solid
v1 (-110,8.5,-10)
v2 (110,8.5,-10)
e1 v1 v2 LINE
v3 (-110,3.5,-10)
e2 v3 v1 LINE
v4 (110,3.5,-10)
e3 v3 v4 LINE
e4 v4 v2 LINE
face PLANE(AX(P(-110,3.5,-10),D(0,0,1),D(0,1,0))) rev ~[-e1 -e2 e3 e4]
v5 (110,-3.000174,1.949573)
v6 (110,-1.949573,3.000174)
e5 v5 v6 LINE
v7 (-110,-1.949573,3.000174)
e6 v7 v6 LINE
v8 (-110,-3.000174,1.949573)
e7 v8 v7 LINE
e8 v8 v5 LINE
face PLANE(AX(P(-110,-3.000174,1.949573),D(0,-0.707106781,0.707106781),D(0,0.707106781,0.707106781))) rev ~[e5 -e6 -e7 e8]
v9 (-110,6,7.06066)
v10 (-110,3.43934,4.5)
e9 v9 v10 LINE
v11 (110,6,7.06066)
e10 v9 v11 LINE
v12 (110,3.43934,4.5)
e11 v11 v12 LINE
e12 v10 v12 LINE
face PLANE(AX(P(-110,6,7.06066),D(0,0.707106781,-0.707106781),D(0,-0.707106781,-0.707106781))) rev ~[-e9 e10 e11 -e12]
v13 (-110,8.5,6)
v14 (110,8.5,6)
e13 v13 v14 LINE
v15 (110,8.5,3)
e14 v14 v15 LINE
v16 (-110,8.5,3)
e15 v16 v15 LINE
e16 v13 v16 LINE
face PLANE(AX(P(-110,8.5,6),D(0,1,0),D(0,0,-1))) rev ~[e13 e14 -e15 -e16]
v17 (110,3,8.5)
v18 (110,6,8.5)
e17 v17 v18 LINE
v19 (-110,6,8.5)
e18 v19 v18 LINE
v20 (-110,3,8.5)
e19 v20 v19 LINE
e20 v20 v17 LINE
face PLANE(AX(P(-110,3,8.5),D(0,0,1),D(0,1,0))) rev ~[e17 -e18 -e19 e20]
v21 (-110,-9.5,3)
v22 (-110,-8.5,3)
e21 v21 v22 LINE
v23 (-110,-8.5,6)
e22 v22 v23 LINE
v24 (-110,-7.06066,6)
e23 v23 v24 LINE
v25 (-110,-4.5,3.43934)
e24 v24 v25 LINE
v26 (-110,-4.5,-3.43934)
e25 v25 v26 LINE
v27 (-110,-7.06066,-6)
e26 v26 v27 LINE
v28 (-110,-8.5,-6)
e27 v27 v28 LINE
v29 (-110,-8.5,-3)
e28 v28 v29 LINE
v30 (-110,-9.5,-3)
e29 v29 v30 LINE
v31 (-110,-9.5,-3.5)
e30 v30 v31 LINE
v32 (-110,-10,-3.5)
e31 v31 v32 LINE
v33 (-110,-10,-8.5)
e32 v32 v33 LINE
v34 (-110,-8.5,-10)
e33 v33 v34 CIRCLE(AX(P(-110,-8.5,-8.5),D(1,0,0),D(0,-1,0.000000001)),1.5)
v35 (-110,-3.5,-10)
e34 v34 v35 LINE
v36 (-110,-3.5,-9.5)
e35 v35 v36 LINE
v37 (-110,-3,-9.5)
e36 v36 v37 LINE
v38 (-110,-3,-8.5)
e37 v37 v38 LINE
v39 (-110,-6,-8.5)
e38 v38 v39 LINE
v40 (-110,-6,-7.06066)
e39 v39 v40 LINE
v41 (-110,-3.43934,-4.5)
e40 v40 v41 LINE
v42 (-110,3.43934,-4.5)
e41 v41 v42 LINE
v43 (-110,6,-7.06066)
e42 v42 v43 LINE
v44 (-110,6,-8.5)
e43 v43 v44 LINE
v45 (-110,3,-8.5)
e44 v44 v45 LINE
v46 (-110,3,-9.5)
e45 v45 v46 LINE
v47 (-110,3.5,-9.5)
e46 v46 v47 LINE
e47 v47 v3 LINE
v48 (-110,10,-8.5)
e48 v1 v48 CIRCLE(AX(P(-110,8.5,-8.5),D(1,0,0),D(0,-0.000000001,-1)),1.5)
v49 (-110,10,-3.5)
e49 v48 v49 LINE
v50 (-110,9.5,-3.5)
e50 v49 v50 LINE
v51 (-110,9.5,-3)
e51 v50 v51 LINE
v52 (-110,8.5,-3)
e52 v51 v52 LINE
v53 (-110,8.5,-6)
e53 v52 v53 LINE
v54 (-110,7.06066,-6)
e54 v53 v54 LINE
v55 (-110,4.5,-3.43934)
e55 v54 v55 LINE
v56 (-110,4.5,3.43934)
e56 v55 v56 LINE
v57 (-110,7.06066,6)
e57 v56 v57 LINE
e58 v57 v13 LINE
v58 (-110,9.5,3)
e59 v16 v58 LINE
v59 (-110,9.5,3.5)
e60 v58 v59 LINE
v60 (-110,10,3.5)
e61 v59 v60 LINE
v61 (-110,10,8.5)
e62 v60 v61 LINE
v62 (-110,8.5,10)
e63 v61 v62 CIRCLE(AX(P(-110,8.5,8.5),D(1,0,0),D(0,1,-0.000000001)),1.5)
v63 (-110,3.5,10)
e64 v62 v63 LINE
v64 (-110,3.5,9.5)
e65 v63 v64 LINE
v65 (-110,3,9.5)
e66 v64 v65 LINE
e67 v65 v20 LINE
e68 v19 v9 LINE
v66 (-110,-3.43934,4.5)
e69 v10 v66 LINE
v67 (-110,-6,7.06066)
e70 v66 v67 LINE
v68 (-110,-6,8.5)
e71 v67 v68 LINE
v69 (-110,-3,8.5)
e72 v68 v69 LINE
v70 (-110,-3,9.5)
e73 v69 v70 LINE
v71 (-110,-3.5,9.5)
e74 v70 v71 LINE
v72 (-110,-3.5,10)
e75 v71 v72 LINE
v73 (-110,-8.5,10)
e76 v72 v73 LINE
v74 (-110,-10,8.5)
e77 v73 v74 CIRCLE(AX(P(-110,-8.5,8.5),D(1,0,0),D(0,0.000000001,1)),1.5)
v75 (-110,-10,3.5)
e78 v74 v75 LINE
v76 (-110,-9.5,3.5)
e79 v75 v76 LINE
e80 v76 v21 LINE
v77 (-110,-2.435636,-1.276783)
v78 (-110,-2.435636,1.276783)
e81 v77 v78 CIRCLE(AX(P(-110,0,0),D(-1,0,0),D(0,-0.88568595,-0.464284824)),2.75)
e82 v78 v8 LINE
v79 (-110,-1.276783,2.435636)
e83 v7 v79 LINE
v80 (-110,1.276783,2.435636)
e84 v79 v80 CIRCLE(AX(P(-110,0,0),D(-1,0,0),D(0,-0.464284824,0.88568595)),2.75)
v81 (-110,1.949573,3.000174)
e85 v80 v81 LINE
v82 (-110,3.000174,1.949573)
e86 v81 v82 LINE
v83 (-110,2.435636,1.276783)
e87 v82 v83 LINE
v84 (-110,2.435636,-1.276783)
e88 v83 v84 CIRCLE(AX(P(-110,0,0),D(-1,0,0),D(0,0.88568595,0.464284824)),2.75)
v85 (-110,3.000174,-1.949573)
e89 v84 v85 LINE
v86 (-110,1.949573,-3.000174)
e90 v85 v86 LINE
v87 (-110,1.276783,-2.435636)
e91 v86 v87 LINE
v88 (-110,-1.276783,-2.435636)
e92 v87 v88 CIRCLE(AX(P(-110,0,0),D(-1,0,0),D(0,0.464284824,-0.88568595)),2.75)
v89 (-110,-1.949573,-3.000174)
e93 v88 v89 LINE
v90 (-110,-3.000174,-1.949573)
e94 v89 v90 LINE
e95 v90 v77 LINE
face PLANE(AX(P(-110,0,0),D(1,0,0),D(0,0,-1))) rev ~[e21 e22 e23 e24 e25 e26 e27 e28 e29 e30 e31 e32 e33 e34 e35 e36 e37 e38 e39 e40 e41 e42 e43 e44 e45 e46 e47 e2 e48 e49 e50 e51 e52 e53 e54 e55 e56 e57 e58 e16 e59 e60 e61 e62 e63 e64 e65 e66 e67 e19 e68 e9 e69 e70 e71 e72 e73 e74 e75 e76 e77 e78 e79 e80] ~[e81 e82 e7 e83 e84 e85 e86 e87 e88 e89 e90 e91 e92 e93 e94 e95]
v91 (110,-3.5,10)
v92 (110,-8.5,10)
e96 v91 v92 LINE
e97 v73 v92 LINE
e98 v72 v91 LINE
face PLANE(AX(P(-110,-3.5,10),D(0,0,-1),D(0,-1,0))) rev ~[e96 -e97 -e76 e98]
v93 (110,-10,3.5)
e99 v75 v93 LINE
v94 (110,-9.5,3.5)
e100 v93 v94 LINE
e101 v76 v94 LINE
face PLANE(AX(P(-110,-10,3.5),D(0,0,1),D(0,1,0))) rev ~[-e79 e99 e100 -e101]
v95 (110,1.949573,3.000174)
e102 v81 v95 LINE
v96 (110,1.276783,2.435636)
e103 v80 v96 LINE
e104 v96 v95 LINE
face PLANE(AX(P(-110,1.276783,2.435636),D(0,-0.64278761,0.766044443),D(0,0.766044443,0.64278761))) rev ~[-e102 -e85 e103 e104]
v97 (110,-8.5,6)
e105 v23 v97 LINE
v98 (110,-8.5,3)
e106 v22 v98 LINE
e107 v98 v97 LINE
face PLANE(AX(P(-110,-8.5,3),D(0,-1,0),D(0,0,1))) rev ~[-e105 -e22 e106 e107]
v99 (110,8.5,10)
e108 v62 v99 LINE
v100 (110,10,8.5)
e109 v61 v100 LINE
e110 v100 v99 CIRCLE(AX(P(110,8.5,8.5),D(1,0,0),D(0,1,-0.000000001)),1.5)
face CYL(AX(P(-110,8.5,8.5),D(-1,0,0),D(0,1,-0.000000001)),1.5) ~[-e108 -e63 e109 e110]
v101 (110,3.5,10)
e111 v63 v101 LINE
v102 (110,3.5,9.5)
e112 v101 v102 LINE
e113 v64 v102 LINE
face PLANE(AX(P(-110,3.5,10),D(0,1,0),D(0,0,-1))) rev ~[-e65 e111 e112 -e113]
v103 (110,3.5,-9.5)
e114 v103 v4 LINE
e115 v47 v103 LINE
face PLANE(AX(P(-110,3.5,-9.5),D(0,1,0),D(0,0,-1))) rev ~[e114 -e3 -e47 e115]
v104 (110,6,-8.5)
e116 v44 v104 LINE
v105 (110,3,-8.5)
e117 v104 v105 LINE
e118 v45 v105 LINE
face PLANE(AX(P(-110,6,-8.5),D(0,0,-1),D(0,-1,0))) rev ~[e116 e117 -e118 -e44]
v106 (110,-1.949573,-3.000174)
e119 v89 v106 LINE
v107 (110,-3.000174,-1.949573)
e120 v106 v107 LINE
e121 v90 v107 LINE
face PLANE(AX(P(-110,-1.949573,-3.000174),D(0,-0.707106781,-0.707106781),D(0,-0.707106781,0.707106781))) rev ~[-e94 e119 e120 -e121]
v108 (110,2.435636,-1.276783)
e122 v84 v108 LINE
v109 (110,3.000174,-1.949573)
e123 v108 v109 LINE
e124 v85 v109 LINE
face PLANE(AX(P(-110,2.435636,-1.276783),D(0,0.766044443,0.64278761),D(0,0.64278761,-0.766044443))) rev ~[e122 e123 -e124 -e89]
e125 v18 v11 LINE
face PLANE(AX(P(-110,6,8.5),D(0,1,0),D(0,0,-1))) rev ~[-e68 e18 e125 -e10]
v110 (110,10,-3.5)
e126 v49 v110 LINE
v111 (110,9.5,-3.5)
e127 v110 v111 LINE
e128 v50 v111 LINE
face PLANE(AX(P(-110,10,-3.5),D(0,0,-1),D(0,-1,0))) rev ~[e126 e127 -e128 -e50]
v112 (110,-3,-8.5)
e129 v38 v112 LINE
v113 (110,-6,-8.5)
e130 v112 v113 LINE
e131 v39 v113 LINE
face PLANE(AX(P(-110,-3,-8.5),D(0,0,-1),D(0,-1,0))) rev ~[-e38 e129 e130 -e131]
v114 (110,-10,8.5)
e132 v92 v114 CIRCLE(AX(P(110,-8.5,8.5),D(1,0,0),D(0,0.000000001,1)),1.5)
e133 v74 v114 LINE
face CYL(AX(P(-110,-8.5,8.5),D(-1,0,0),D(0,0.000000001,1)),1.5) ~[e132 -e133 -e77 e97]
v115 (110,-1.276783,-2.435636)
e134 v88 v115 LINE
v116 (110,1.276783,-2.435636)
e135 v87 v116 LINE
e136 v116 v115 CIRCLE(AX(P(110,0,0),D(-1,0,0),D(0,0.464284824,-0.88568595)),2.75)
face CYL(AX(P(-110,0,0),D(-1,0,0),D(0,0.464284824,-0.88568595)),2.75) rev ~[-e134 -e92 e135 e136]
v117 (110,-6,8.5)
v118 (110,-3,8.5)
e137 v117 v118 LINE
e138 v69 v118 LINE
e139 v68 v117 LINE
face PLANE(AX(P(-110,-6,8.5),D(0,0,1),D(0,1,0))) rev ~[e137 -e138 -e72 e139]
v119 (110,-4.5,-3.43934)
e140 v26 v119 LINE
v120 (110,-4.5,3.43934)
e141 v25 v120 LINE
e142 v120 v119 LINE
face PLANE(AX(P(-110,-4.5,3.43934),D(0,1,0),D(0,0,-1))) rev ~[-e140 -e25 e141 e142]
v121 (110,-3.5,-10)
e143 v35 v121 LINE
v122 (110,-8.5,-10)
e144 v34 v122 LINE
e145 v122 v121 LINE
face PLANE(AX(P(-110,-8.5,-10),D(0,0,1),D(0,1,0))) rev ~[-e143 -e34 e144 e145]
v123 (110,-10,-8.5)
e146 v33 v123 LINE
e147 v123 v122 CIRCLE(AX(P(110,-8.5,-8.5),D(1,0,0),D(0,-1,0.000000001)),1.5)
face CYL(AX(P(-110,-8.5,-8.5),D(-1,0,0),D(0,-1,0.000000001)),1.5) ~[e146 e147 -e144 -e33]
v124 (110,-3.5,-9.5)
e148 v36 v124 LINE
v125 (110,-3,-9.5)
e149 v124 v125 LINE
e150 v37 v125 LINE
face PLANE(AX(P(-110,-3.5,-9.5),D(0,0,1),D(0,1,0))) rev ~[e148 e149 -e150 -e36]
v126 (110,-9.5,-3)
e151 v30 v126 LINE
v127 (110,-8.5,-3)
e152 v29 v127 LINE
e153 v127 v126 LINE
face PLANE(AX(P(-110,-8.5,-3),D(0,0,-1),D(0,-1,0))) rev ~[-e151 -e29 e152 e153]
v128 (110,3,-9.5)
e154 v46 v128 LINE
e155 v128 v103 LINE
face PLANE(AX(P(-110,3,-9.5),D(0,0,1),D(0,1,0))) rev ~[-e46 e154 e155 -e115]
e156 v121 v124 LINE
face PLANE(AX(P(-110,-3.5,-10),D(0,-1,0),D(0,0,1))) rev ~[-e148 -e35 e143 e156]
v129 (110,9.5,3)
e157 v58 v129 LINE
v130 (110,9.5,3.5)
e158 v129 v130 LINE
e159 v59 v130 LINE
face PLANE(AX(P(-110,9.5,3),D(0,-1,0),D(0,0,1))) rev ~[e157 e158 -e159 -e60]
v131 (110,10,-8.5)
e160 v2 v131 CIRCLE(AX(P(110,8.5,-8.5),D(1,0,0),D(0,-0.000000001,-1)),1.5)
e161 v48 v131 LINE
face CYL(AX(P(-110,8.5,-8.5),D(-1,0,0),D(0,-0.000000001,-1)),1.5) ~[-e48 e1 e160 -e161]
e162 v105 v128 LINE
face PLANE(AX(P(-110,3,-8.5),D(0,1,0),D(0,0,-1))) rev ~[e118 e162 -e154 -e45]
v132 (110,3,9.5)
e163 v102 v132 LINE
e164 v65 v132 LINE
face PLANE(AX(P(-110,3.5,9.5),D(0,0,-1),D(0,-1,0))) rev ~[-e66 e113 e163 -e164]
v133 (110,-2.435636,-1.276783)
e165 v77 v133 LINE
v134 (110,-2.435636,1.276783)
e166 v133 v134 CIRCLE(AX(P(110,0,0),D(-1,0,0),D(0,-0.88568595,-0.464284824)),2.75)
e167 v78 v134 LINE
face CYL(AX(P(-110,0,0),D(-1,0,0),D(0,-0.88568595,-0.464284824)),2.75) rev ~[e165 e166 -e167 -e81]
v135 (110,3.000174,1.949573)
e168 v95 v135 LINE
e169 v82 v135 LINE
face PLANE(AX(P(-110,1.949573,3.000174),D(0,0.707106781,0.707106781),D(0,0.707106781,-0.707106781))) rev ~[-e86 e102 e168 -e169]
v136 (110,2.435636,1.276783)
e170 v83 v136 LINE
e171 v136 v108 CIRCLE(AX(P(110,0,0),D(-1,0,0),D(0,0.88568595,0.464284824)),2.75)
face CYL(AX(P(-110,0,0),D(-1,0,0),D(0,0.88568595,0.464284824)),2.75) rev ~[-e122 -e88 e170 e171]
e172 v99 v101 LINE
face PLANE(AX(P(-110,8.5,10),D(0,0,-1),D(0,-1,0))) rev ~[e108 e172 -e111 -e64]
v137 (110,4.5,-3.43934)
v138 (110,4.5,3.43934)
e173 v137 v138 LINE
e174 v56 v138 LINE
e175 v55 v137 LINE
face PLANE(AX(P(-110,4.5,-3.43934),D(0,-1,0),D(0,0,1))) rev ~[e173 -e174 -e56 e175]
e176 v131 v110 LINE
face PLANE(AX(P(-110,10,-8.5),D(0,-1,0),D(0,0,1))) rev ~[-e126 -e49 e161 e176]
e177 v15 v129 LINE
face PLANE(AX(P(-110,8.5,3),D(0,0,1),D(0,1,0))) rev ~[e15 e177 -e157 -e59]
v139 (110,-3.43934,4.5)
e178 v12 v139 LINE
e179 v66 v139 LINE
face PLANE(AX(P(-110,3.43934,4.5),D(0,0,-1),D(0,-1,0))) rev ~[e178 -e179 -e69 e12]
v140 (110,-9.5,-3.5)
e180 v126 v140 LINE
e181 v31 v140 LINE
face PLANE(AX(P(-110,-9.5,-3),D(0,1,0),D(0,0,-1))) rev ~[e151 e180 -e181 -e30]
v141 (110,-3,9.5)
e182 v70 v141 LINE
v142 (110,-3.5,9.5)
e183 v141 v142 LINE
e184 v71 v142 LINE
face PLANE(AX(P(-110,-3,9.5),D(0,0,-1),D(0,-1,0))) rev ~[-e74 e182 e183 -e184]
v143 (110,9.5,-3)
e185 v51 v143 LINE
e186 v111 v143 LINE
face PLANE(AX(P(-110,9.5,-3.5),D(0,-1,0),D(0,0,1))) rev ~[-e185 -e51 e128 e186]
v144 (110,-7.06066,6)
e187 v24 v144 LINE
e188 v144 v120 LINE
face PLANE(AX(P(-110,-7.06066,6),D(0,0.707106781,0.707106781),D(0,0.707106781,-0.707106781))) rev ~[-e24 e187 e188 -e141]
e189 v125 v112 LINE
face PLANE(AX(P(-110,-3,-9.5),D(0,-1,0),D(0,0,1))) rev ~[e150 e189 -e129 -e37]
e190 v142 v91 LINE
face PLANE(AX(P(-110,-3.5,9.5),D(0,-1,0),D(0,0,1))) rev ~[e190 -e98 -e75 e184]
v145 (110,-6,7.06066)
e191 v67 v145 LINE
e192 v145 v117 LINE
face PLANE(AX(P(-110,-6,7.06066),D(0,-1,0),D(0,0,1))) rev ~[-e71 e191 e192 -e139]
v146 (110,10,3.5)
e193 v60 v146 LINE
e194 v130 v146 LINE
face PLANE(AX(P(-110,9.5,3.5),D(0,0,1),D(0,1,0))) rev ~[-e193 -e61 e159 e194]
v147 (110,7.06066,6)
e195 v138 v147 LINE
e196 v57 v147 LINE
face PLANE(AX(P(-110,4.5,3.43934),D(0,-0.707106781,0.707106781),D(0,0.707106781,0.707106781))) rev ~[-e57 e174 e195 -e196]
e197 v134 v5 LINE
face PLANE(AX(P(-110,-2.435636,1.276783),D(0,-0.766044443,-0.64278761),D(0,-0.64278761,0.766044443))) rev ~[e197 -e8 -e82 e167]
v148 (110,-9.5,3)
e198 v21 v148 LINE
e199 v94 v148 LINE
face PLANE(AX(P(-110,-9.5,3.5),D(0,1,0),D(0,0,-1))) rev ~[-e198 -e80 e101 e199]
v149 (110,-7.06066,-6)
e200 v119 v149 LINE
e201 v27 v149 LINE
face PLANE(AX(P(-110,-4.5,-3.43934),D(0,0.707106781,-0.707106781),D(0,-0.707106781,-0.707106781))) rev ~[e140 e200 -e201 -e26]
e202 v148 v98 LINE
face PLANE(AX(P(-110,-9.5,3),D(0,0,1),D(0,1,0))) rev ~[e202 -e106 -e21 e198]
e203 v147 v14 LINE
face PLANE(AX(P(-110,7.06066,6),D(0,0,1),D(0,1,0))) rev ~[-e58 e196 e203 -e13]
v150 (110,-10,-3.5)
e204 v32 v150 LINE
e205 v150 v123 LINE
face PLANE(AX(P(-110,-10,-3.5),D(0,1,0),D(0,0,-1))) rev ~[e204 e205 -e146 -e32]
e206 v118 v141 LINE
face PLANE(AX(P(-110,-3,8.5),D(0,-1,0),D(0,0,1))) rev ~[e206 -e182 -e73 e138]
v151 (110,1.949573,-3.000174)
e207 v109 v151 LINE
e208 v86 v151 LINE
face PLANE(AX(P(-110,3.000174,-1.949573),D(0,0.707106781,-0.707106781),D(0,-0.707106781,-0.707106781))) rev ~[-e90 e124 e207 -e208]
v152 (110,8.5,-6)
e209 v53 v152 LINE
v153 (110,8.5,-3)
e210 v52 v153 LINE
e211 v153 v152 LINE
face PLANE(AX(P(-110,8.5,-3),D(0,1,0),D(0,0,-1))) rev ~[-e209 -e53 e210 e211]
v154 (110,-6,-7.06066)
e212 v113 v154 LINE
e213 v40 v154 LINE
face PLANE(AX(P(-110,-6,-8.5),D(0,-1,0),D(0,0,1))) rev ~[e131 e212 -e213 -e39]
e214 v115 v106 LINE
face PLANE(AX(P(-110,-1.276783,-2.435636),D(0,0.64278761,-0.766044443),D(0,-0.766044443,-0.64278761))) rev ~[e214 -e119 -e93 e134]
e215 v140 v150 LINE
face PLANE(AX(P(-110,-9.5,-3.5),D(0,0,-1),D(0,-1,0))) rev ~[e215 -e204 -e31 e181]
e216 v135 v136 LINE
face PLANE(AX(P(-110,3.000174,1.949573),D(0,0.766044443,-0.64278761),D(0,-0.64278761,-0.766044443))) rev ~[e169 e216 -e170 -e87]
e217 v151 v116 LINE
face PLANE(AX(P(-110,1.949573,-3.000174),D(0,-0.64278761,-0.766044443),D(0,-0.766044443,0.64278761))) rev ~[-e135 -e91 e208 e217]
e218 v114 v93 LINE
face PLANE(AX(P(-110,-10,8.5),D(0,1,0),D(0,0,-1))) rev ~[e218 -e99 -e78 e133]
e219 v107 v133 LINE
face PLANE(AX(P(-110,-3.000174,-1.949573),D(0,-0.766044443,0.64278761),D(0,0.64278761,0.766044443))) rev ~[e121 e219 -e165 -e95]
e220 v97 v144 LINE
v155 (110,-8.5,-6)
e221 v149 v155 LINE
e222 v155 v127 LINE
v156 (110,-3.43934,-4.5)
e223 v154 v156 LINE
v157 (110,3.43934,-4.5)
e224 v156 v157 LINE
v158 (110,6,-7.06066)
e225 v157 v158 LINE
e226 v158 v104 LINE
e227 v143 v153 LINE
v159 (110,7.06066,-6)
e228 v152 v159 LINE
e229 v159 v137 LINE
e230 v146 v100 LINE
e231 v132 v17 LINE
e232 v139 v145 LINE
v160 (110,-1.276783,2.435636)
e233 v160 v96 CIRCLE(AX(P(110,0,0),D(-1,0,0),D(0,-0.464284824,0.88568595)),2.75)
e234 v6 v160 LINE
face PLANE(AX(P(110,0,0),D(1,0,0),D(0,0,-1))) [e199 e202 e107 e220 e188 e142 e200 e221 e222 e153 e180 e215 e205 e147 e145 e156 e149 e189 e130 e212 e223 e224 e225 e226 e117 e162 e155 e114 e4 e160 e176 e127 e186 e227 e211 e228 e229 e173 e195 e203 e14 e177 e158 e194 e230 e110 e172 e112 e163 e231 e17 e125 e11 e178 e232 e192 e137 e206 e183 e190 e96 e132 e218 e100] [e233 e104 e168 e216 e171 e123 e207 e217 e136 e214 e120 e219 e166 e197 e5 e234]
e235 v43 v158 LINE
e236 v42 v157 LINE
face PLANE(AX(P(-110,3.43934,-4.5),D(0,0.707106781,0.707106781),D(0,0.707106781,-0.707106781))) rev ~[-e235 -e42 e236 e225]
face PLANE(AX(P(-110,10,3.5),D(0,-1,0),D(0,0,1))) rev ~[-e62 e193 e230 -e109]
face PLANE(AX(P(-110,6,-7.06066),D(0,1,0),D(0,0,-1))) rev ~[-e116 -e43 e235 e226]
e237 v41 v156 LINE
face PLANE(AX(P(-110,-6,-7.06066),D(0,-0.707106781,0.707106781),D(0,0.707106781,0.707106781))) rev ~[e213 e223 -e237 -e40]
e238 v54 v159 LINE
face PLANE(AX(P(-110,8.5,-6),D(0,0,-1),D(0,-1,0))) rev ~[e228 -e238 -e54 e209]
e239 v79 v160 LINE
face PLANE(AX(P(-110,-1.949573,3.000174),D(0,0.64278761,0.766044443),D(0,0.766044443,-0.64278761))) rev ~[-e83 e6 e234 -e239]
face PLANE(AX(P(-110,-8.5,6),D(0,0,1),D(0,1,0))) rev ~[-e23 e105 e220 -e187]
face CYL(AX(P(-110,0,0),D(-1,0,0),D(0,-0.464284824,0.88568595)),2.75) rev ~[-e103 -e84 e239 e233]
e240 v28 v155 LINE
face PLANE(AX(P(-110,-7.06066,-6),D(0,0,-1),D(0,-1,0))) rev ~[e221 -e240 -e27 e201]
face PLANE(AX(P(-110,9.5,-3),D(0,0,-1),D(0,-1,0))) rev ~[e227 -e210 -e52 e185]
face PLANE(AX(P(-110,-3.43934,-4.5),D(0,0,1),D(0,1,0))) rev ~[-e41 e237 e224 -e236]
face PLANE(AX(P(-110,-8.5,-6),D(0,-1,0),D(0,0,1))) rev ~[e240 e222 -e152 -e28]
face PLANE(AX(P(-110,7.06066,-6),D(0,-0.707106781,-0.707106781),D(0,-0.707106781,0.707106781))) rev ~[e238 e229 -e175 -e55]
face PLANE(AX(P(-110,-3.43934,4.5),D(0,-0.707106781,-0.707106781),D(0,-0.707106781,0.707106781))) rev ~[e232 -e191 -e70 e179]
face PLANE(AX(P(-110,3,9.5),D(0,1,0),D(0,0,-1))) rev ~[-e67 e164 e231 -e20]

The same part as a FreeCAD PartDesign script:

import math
import FreeCAD as App
import Part
import Sketcher
Q = App.Units.Quantity

doc = App.newDocument("Part")
body = doc.addObject("PartDesign::Body", "Body")

sketch1 = doc.addObject("Sketcher::SketchObject", "Sketch")
body.addObject(sketch1)
sketch1.AttachmentSupport = (doc.YZ_Plane, [""])
sketch1.MapMode = "FlatFace"
sketch1.addGeometry(Part.LineSegment(App.Vector(-6, 7.1, 0), App.Vector(-6, 8.5, 0)), False)
sketch1.addGeometry(Part.LineSegment(App.Vector(-6, 8.5, 0), App.Vector(-3, 8.5, 0)), False)
sketch1.addGeometry(Part.LineSegment(App.Vector(-3, 8.5, 0), App.Vector(-3, 9.5, 0)), False)
sketch1.addGeometry(Part.LineSegment(App.Vector(-3, 9.5, 0), App.Vector(-3.5, 9.5, 0)), False)
sketch1.addGeometry(Part.LineSegment(App.Vector(-3.5, 9.5, 0), App.Vector(-3.5, 10, 0)), False)
sketch1.addGeometry(Part.LineSegment(App.Vector(-3.5, 10, 0), App.Vector(-8.5, 10, 0)), False)
sketch1.addGeometry(Part.ArcOfCircle(Part.Circle(App.Vector(-8.5, 8.5, 0), App.Vector(0, 0, 1), 1.5), math.radians(90), math.radians(180)), False)
sketch1.addGeometry(Part.LineSegment(App.Vector(-10, 8.5, 0), App.Vector(-10, 3.5, 0)), False)
sketch1.addGeometry(Part.LineSegment(App.Vector(-10, 3.5, 0), App.Vector(-9.5, 3.5, 0)), False)
sketch1.addGeometry(Part.LineSegment(App.Vector(-9.5, 3.5, 0), App.Vector(-9.5, 3, 0)), False)
sketch1.addGeometry(Part.LineSegment(App.Vector(-9.5, 3, 0), App.Vector(-8.5, 3, 0)), False)
sketch1.addGeometry(Part.LineSegment(App.Vector(-8.5, 3, 0), App.Vector(-8.5, 6, 0)), False)
sketch1.addGeometry(Part.LineSegment(App.Vector(-8.5, 6, 0), App.Vector(-7.1, 6, 0)), False)
sketch1.addGeometry(Part.LineSegment(App.Vector(-7.1, 6, 0), App.Vector(-4.5, 3.4, 0)), False)
sketch1.addGeometry(Part.LineSegment(App.Vector(-4.5, 3.4, 0), App.Vector(-4.5, -3.4, 0)), False)
sketch1.addGeometry(Part.LineSegment(App.Vector(-4.5, -3.4, 0), App.Vector(-7.1, -6, 0)), False)
sketch1.addGeometry(Part.LineSegment(App.Vector(-7.1, -6, 0), App.Vector(-8.5, -6, 0)), False)
sketch1.addGeometry(Part.LineSegment(App.Vector(-8.5, -6, 0), App.Vector(-8.5, -3, 0)), False)
sketch1.addGeometry(Part.LineSegment(App.Vector(-8.5, -3, 0), App.Vector(-9.5, -3, 0)), False)
sketch1.addGeometry(Part.LineSegment(App.Vector(-9.5, -3, 0), App.Vector(-9.5, -3.5, 0)), False)
sketch1.addGeometry(Part.LineSegment(App.Vector(-9.5, -3.5, 0), App.Vector(-10, -3.5, 0)), False)
sketch1.addGeometry(Part.LineSegment(App.Vector(-10, -3.5, 0), App.Vector(-10, -8.5, 0)), False)
sketch1.addGeometry(Part.ArcOfCircle(Part.Circle(App.Vector(-8.5, -8.5, 0), App.Vector(0, 0, 1), 1.5), math.radians(180), math.radians(270)), False)
sketch1.addGeometry(Part.LineSegment(App.Vector(-8.5, -10, 0), App.Vector(-3.5, -10, 0)), False)
sketch1.addGeometry(Part.LineSegment(App.Vector(-3.5, -10, 0), App.Vector(-3.5, -9.5, 0)), False)
sketch1.addGeometry(Part.LineSegment(App.Vector(-3.5, -9.5, 0), App.Vector(-3, -9.5, 0)), False)
sketch1.addGeometry(Part.LineSegment(App.Vector(-3, -9.5, 0), App.Vector(-3, -8.5, 0)), False)
sketch1.addGeometry(Part.LineSegment(App.Vector(-3, -8.5, 0), App.Vector(-6, -8.5, 0)), False)
sketch1.addGeometry(Part.LineSegment(App.Vector(-6, -8.5, 0), App.Vector(-6, -7.1, 0)), False)
sketch1.addGeometry(Part.LineSegment(App.Vector(-6, -7.1, 0), App.Vector(-3.4, -4.5, 0)), False)
sketch1.addGeometry(Part.LineSegment(App.Vector(-3.4, -4.5, 0), App.Vector(3.4, -4.5, 0)), False)
sketch1.addGeometry(Part.LineSegment(App.Vector(3.4, -4.5, 0), App.Vector(6, -7.1, 0)), False)
sketch1.addGeometry(Part.LineSegment(App.Vector(6, -7.1, 0), App.Vector(6, -8.5, 0)), False)
sketch1.addGeometry(Part.LineSegment(App.Vector(6, -8.5, 0), App.Vector(3, -8.5, 0)), False)
sketch1.addGeometry(Part.LineSegment(App.Vector(3, -8.5, 0), App.Vector(3, -9.5, 0)), False)
sketch1.addGeometry(Part.LineSegment(App.Vector(3, -9.5, 0), App.Vector(3.5, -9.5, 0)), False)
sketch1.addGeometry(Part.LineSegment(App.Vector(3.5, -9.5, 0), App.Vector(3.5, -10, 0)), False)
sketch1.addGeometry(Part.LineSegment(App.Vector(3.5, -10, 0), App.Vector(8.5, -10, 0)), False)
sketch1.addGeometry(Part.ArcOfCircle(Part.Circle(App.Vector(8.5, -8.5, 0), App.Vector(0, 0, 1), 1.5), math.radians(-90), math.radians(0)), False)
sketch1.addGeometry(Part.LineSegment(App.Vector(10, -8.5, 0), App.Vector(10, -3.5, 0)), False)
sketch1.addGeometry(Part.LineSegment(App.Vector(10, -3.5, 0), App.Vector(9.5, -3.5, 0)), False)
sketch1.addGeometry(Part.LineSegment(App.Vector(9.5, -3.5, 0), App.Vector(9.5, -3, 0)), False)
sketch1.addGeometry(Part.LineSegment(App.Vector(9.5, -3, 0), App.Vector(8.5, -3, 0)), False)
sketch1.addGeometry(Part.LineSegment(App.Vector(8.5, -3, 0), App.Vector(8.5, -6, 0)), False)
sketch1.addGeometry(Part.LineSegment(App.Vector(8.5, -6, 0), App.Vector(7.1, -6, 0)), False)
sketch1.addGeometry(Part.LineSegment(App.Vector(7.1, -6, 0), App.Vector(4.5, -3.4, 0)), False)
sketch1.addGeometry(Part.LineSegment(App.Vector(4.5, -3.4, 0), App.Vector(4.5, 3.4, 0)), False)
sketch1.addGeometry(Part.LineSegment(App.Vector(4.5, 3.4, 0), App.Vector(7.1, 6, 0)), False)
sketch1.addGeometry(Part.LineSegment(App.Vector(7.1, 6, 0), App.Vector(8.5, 6, 0)), False)
sketch1.addGeometry(Part.LineSegment(App.Vector(8.5, 6, 0), App.Vector(8.5, 3, 0)), False)
sketch1.addGeometry(Part.LineSegment(App.Vector(8.5, 3, 0), App.Vector(9.5, 3, 0)), False)
sketch1.addGeometry(Part.LineSegment(App.Vector(9.5, 3, 0), App.Vector(9.5, 3.5, 0)), False)
sketch1.addGeometry(Part.LineSegment(App.Vector(9.5, 3.5, 0), App.Vector(10, 3.5, 0)), False)
sketch1.addGeometry(Part.LineSegment(App.Vector(10, 3.5, 0), App.Vector(10, 8.5, 0)), False)
sketch1.addGeometry(Part.ArcOfCircle(Part.Circle(App.Vector(8.5, 8.5, 0), App.Vector(0, 0, 1), 1.5), math.radians(0), math.radians(90)), False)
sketch1.addGeometry(Part.LineSegment(App.Vector(8.5, 10, 0), App.Vector(3.5, 10, 0)), False)
sketch1.addGeometry(Part.LineSegment(App.Vector(3.5, 10, 0), App.Vector(3.5, 9.5, 0)), False)
sketch1.addGeometry(Part.LineSegment(App.Vector(3.5, 9.5, 0), App.Vector(3, 9.5, 0)), False)
sketch1.addGeometry(Part.LineSegment(App.Vector(3, 9.5, 0), App.Vector(3, 8.5, 0)), False)
sketch1.addGeometry(Part.LineSegment(App.Vector(3, 8.5, 0), App.Vector(6, 8.5, 0)), False)
sketch1.addGeometry(Part.LineSegment(App.Vector(6, 8.5, 0), App.Vector(6, 7.1, 0)), False)
sketch1.addGeometry(Part.LineSegment(App.Vector(6, 7.1, 0), App.Vector(3.4, 4.5, 0)), False)
sketch1.addGeometry(Part.LineSegment(App.Vector(3.4, 4.5, 0), App.Vector(-3.4, 4.5, 0)), False)
sketch1.addGeometry(Part.LineSegment(App.Vector(-3.4, 4.5, 0), App.Vector(-6, 7.1, 0)), False)
sketch1.addGeometry(Part.LineSegment(App.Vector(-3, 1.9, 0), App.Vector(-1.9, 3, 0)), False)
sketch1.addGeometry(Part.LineSegment(App.Vector(-1.9, 3, 0), App.Vector(-1.3, 2.4, 0)), False)
sketch1.addGeometry(Part.ArcOfCircle(Part.Circle(App.Vector(0, 0, 0), App.Vector(0, 0, 1), 2.8), math.radians(62), math.radians(118)), False)
sketch1.addGeometry(Part.LineSegment(App.Vector(1.3, 2.4, 0), App.Vector(1.9, 3, 0)), False)
sketch1.addGeometry(Part.LineSegment(App.Vector(1.9, 3, 0), App.Vector(3, 1.9, 0)), False)
sketch1.addGeometry(Part.LineSegment(App.Vector(3, 1.9, 0), App.Vector(2.4, 1.3, 0)), False)
sketch1.addGeometry(Part.ArcOfCircle(Part.Circle(App.Vector(0, 0, 0), App.Vector(0, 0, 1), 2.8), math.radians(-28), math.radians(28)), False)
sketch1.addGeometry(Part.LineSegment(App.Vector(2.4, -1.3, 0), App.Vector(3, -1.9, 0)), False)
sketch1.addGeometry(Part.LineSegment(App.Vector(3, -1.9, 0), App.Vector(1.9, -3, 0)), False)
sketch1.addGeometry(Part.LineSegment(App.Vector(1.9, -3, 0), App.Vector(1.3, -2.4, 0)), False)
sketch1.addGeometry(Part.ArcOfCircle(Part.Circle(App.Vector(0, 0, 0), App.Vector(0, 0, 1), 2.8), math.radians(-118), math.radians(-62)), False)
sketch1.addGeometry(Part.LineSegment(App.Vector(-1.3, -2.4, 0), App.Vector(-1.9, -3, 0)), False)
sketch1.addGeometry(Part.LineSegment(App.Vector(-1.9, -3, 0), App.Vector(-3, -1.9, 0)), False)
sketch1.addGeometry(Part.LineSegment(App.Vector(-3, -1.9, 0), App.Vector(-2.4, -1.3, 0)), False)
sketch1.addGeometry(Part.ArcOfCircle(Part.Circle(App.Vector(0, 0, 0), App.Vector(0, 0, 1), 2.8), math.radians(152), math.radians(208)), False)
sketch1.addGeometry(Part.LineSegment(App.Vector(-2.4, 1.3, 0), App.Vector(-3, 1.9, 0)), False)
sketch1.addConstraint(Sketcher.Constraint("Coincident", 0, 2, 1, 1))
sketch1.addConstraint(Sketcher.Constraint("Coincident", 1, 2, 2, 1))
sketch1.addConstraint(Sketcher.Constraint("Coincident", 2, 2, 3, 1))
sketch1.addConstraint(Sketcher.Constraint("Coincident", 3, 2, 4, 1))
sketch1.addConstraint(Sketcher.Constraint("Coincident", 4, 2, 5, 1))
sketch1.addConstraint(Sketcher.Constraint("Tangent", 5, 2, 6, 1))
sketch1.addConstraint(Sketcher.Constraint("Tangent", 6, 2, 7, 1))
sketch1.addConstraint(Sketcher.Constraint("Coincident", 7, 2, 8, 1))
sketch1.addConstraint(Sketcher.Constraint("Coincident", 8, 2, 9, 1))
sketch1.addConstraint(Sketcher.Constraint("Coincident", 9, 2, 10, 1))
sketch1.addConstraint(Sketcher.Constraint("Coincident", 10, 2, 11, 1))
sketch1.addConstraint(Sketcher.Constraint("Coincident", 11, 2, 12, 1))
sketch1.addConstraint(Sketcher.Constraint("Coincident", 12, 2, 13, 1))
sketch1.addConstraint(Sketcher.Constraint("Coincident", 13, 2, 14, 1))
sketch1.addConstraint(Sketcher.Constraint("Coincident", 14, 2, 15, 1))
sketch1.addConstraint(Sketcher.Constraint("Coincident", 15, 2, 16, 1))
sketch1.addConstraint(Sketcher.Constraint("Coincident", 16, 2, 17, 1))
sketch1.addConstraint(Sketcher.Constraint("Coincident", 17, 2, 18, 1))
sketch1.addConstraint(Sketcher.Constraint("Coincident", 18, 2, 19, 1))
sketch1.addConstraint(Sketcher.Constraint("Coincident", 19, 2, 20, 1))
sketch1.addConstraint(Sketcher.Constraint("Coincident", 20, 2, 21, 1))
sketch1.addConstraint(Sketcher.Constraint("Tangent", 21, 2, 22, 1))
sketch1.addConstraint(Sketcher.Constraint("Tangent", 22, 2, 23, 1))
sketch1.addConstraint(Sketcher.Constraint("Coincident", 23, 2, 24, 1))
sketch1.addConstraint(Sketcher.Constraint("Coincident", 24, 2, 25, 1))
sketch1.addConstraint(Sketcher.Constraint("Coincident", 25, 2, 26, 1))
sketch1.addConstraint(Sketcher.Constraint("Coincident", 26, 2, 27, 1))
sketch1.addConstraint(Sketcher.Constraint("Coincident", 27, 2, 28, 1))
sketch1.addConstraint(Sketcher.Constraint("Coincident", 28, 2, 29, 1))
sketch1.addConstraint(Sketcher.Constraint("Coincident", 29, 2, 30, 1))
sketch1.addConstraint(Sketcher.Constraint("Coincident", 30, 2, 31, 1))
sketch1.addConstraint(Sketcher.Constraint("Coincident", 31, 2, 32, 1))
sketch1.addConstraint(Sketcher.Constraint("Coincident", 32, 2, 33, 1))
sketch1.addConstraint(Sketcher.Constraint("Coincident", 33, 2, 34, 1))
sketch1.addConstraint(Sketcher.Constraint("Coincident", 34, 2, 35, 1))
sketch1.addConstraint(Sketcher.Constraint("Coincident", 35, 2, 36, 1))
sketch1.addConstraint(Sketcher.Constraint("Coincident", 36, 2, 37, 1))
sketch1.addConstraint(Sketcher.Constraint("Tangent", 37, 2, 38, 1))
sketch1.addConstraint(Sketcher.Constraint("Tangent", 38, 2, 39, 1))
sketch1.addConstraint(Sketcher.Constraint("Coincident", 39, 2, 40, 1))
sketch1.addConstraint(Sketcher.Constraint("Coincident", 40, 2, 41, 1))
sketch1.addConstraint(Sketcher.Constraint("Coincident", 41, 2, 42, 1))
sketch1.addConstraint(Sketcher.Constraint("Coincident", 42, 2, 43, 1))
sketch1.addConstraint(Sketcher.Constraint("Coincident", 43, 2, 44, 1))
sketch1.addConstraint(Sketcher.Constraint("Coincident", 44, 2, 45, 1))
sketch1.addConstraint(Sketcher.Constraint("Coincident", 45, 2, 46, 1))
sketch1.addConstraint(Sketcher.Constraint("Coincident", 46, 2, 47, 1))
sketch1.addConstraint(Sketcher.Constraint("Coincident", 47, 2, 48, 1))
sketch1.addConstraint(Sketcher.Constraint("Coincident", 48, 2, 49, 1))
sketch1.addConstraint(Sketcher.Constraint("Coincident", 49, 2, 50, 1))
sketch1.addConstraint(Sketcher.Constraint("Coincident", 50, 2, 51, 1))
sketch1.addConstraint(Sketcher.Constraint("Coincident", 51, 2, 52, 1))
sketch1.addConstraint(Sketcher.Constraint("Coincident", 52, 2, 53, 1))
sketch1.addConstraint(Sketcher.Constraint("Tangent", 53, 2, 54, 1))
sketch1.addConstraint(Sketcher.Constraint("Tangent", 54, 2, 55, 1))
sketch1.addConstraint(Sketcher.Constraint("Coincident", 55, 2, 56, 1))
sketch1.addConstraint(Sketcher.Constraint("Coincident", 56, 2, 57, 1))
sketch1.addConstraint(Sketcher.Constraint("Coincident", 57, 2, 58, 1))
sketch1.addConstraint(Sketcher.Constraint("Coincident", 58, 2, 59, 1))
sketch1.addConstraint(Sketcher.Constraint("Coincident", 59, 2, 60, 1))
sketch1.addConstraint(Sketcher.Constraint("Coincident", 60, 2, 61, 1))
sketch1.addConstraint(Sketcher.Constraint("Coincident", 61, 2, 62, 1))
sketch1.addConstraint(Sketcher.Constraint("Coincident", 62, 2, 63, 1))
sketch1.addConstraint(Sketcher.Constraint("Coincident", 63, 2, 0, 1))
sketch1.addConstraint(Sketcher.Constraint("Coincident", 64, 2, 65, 1))
sketch1.addConstraint(Sketcher.Constraint("Coincident", 65, 2, 66, 2))
sketch1.addConstraint(Sketcher.Constraint("Coincident", 66, 1, 67, 1))
sketch1.addConstraint(Sketcher.Constraint("Coincident", 67, 2, 68, 1))
sketch1.addConstraint(Sketcher.Constraint("Coincident", 68, 2, 69, 1))
sketch1.addConstraint(Sketcher.Constraint("Coincident", 69, 2, 70, 2))
sketch1.addConstraint(Sketcher.Constraint("Coincident", 70, 1, 71, 1))
sketch1.addConstraint(Sketcher.Constraint("Coincident", 71, 2, 72, 1))
sketch1.addConstraint(Sketcher.Constraint("Coincident", 72, 2, 73, 1))
sketch1.addConstraint(Sketcher.Constraint("Coincident", 73, 2, 74, 2))
sketch1.addConstraint(Sketcher.Constraint("Coincident", 74, 1, 75, 1))
sketch1.addConstraint(Sketcher.Constraint("Coincident", 75, 2, 76, 1))
sketch1.addConstraint(Sketcher.Constraint("Coincident", 76, 2, 77, 1))
sketch1.addConstraint(Sketcher.Constraint("Coincident", 77, 2, 78, 2))
sketch1.addConstraint(Sketcher.Constraint("Coincident", 78, 1, 79, 1))
sketch1.addConstraint(Sketcher.Constraint("Coincident", 79, 2, 64, 1))
sketch1.addConstraint(Sketcher.Constraint("Vertical", 0))
sketch1.addConstraint(Sketcher.Constraint("Horizontal", 1))
sketch1.addConstraint(Sketcher.Constraint("Vertical", 2))
sketch1.addConstraint(Sketcher.Constraint("Horizontal", 3))
sketch1.addConstraint(Sketcher.Constraint("Vertical", 4))
sketch1.addConstraint(Sketcher.Constraint("Horizontal", 5))
sketch1.addConstraint(Sketcher.Constraint("Vertical", 7))
sketch1.addConstraint(Sketcher.Constraint("Horizontal", 8))
sketch1.addConstraint(Sketcher.Constraint("Vertical", 9))
sketch1.addConstraint(Sketcher.Constraint("Horizontal", 10))
sketch1.addConstraint(Sketcher.Constraint("Vertical", 11))
sketch1.addConstraint(Sketcher.Constraint("Horizontal", 12))
sketch1.addConstraint(Sketcher.Constraint("Vertical", 14))
sketch1.addConstraint(Sketcher.Constraint("Horizontal", 16))
sketch1.addConstraint(Sketcher.Constraint("Vertical", 17))
sketch1.addConstraint(Sketcher.Constraint("Horizontal", 18))
sketch1.addConstraint(Sketcher.Constraint("Vertical", 19))
sketch1.addConstraint(Sketcher.Constraint("Horizontal", 20))
sketch1.addConstraint(Sketcher.Constraint("Vertical", 21))
sketch1.addConstraint(Sketcher.Constraint("Horizontal", 23))
sketch1.addConstraint(Sketcher.Constraint("Vertical", 24))
sketch1.addConstraint(Sketcher.Constraint("Horizontal", 25))
sketch1.addConstraint(Sketcher.Constraint("Vertical", 26))
sketch1.addConstraint(Sketcher.Constraint("Horizontal", 27))
sketch1.addConstraint(Sketcher.Constraint("Vertical", 28))
sketch1.addConstraint(Sketcher.Constraint("Horizontal", 30))
sketch1.addConstraint(Sketcher.Constraint("Vertical", 32))
sketch1.addConstraint(Sketcher.Constraint("Horizontal", 33))
sketch1.addConstraint(Sketcher.Constraint("Vertical", 34))
sketch1.addConstraint(Sketcher.Constraint("Horizontal", 35))
sketch1.addConstraint(Sketcher.Constraint("Vertical", 36))
sketch1.addConstraint(Sketcher.Constraint("Horizontal", 37))
sketch1.addConstraint(Sketcher.Constraint("Vertical", 39))
sketch1.addConstraint(Sketcher.Constraint("Horizontal", 40))
sketch1.addConstraint(Sketcher.Constraint("Vertical", 41))
sketch1.addConstraint(Sketcher.Constraint("Horizontal", 42))
sketch1.addConstraint(Sketcher.Constraint("Vertical", 43))
sketch1.addConstraint(Sketcher.Constraint("Horizontal", 44))
sketch1.addConstraint(Sketcher.Constraint("Vertical", 46))
sketch1.addConstraint(Sketcher.Constraint("Horizontal", 48))
sketch1.addConstraint(Sketcher.Constraint("Vertical", 49))
sketch1.addConstraint(Sketcher.Constraint("Horizontal", 50))
sketch1.addConstraint(Sketcher.Constraint("Vertical", 51))
sketch1.addConstraint(Sketcher.Constraint("Horizontal", 52))
sketch1.addConstraint(Sketcher.Constraint("Vertical", 53))
sketch1.addConstraint(Sketcher.Constraint("Horizontal", 55))
sketch1.addConstraint(Sketcher.Constraint("Vertical", 56))
sketch1.addConstraint(Sketcher.Constraint("Horizontal", 57))
sketch1.addConstraint(Sketcher.Constraint("Vertical", 58))
sketch1.addConstraint(Sketcher.Constraint("Horizontal", 59))
sketch1.addConstraint(Sketcher.Constraint("Vertical", 60))
sketch1.addConstraint(Sketcher.Constraint("Horizontal", 62))
sketch1.addConstraint(Sketcher.Constraint("Coincident", 66, 3, -1, 1))
sketch1.addConstraint(Sketcher.Constraint("Coincident", 70, 3, -1, 1))
sketch1.addConstraint(Sketcher.Constraint("Coincident", 74, 3, -1, 1))
sketch1.addConstraint(Sketcher.Constraint("Coincident", 78, 3, -1, 1))
sketch1.addConstraint(Sketcher.Constraint("Equal", 6, 22))
sketch1.addConstraint(Sketcher.Constraint("Equal", 22, 38))
sketch1.addConstraint(Sketcher.Constraint("Equal", 38, 54))
sketch1.addConstraint(Sketcher.Constraint("Equal", 66, 70))
sketch1.addConstraint(Sketcher.Constraint("Equal", 70, 74))
sketch1.addConstraint(Sketcher.Constraint("Equal", 74, 78))
sketch1.addConstraint(Sketcher.Constraint("Symmetric", 6, 3, 38, 3, -1, 1))
sketch1.addConstraint(Sketcher.Constraint("Symmetric", 22, 3, 54, 3, -1, 1))
sketch1.addConstraint(Sketcher.Constraint("Symmetric", 0, 2, 32, 2, -1, 1))
sketch1.addConstraint(Sketcher.Constraint("Symmetric", 2, 2, 34, 2, -1, 1))
sketch1.addConstraint(Sketcher.Constraint("Symmetric", 8, 2, 40, 2, -1, 1))
sketch1.addConstraint(Sketcher.Constraint("Symmetric", 10, 2, 42, 2, -1, 1))
sketch1.addConstraint(Sketcher.Constraint("Symmetric", 12, 2, 44, 2, -1, 1))
sketch1.addConstraint(Sketcher.Constraint("Symmetric", 13, 2, 45, 2, -1, 1))
sketch1.addConstraint(Sketcher.Constraint("Symmetric", 15, 2, 47, 2, -1, 1))
sketch1.addConstraint(Sketcher.Constraint("Symmetric", 17, 2, 49, 2, -1, 1))
sketch1.addConstraint(Sketcher.Constraint("Symmetric", 19, 2, 51, 2, -1, 1))
sketch1.addConstraint(Sketcher.Constraint("Symmetric", 24, 2, 56, 2, -1, 1))
sketch1.addConstraint(Sketcher.Constraint("Symmetric", 26, 2, 58, 2, -1, 1))
sketch1.addConstraint(Sketcher.Constraint("Symmetric", 28, 2, 60, 2, -1, 1))
sketch1.addConstraint(Sketcher.Constraint("Symmetric", 29, 2, 61, 2, -1, 1))
sketch1.addConstraint(Sketcher.Constraint("Symmetric", 64, 2, 72, 2, -1, 1))
sketch1.addConstraint(Sketcher.Constraint("Symmetric", 67, 2, 75, 2, -1, 1))
sketch1.addConstraint(Sketcher.Constraint("Symmetric", 68, 2, 76, 2, -1, 1))
sketch1.addConstraint(Sketcher.Constraint("Symmetric", 71, 2, 79, 2, -1, 1))
sketch1.addConstraint(Sketcher.Constraint("Symmetric", 22, 3, 38, 3, -2))
sketch1.addConstraint(Sketcher.Constraint("Symmetric", 28, 2, 31, 2, -2))
sketch1.addConstraint(Sketcher.Constraint("Symmetric", 26, 2, 33, 2, -2))
sketch1.addConstraint(Sketcher.Constraint("Symmetric", 24, 2, 35, 2, -2))
sketch1.addConstraint(Sketcher.Constraint("Symmetric", 19, 2, 40, 2, -2))
sketch1.addConstraint(Sketcher.Constraint("Symmetric", 17, 2, 42, 2, -2))
sketch1.addConstraint(Sketcher.Constraint("Symmetric", 15, 2, 44, 2, -2))
sketch1.addConstraint(Sketcher.Constraint("Symmetric", 64, 2, 67, 2, -2))
sketch1.addConstraint(Sketcher.Constraint("Symmetric", 71, 2, 76, 2, -2))
sketch1.addConstraint(Sketcher.Constraint("Perpendicular", 13, 15))
sketch1.addConstraint(Sketcher.Constraint("Parallel", 15, 29))
sketch1.addConstraint(Sketcher.Constraint("Perpendicular", 29, 31))
sketch1.addConstraint(Sketcher.Constraint("Perpendicular", 45, 47))
sketch1.addConstraint(Sketcher.Constraint("Perpendicular", 61, 63))
sketch1.addConstraint(Sketcher.Constraint("Perpendicular", 63, 64))
sketch1.addConstraint(Sketcher.Constraint("Perpendicular", 64, 68))
sketch1.addConstraint(Sketcher.Constraint("Perpendicular", 65, 69))
sketch1.addConstraint(Sketcher.Constraint("Perpendicular", 67, 71))
sketch1.addConstraint(Sketcher.Constraint("Perpendicular", 69, 73))
sketch1.addConstraint(Sketcher.Constraint("Perpendicular", 71, 75))
sketch1.addConstraint(Sketcher.Constraint("Perpendicular", 73, 77))
sketch1.addConstraint(Sketcher.Constraint("Perpendicular", 75, 79))
sketch1.addConstraint(Sketcher.Constraint("Horizontal", 54, 3, 0, 2))
sketch1.addConstraint(Sketcher.Constraint("Horizontal", 60, 2, 63, 2))
sketch1.addConstraint(Sketcher.Constraint("Horizontal", 65, 2, 66, 1))
sketch1.addConstraint(Sketcher.Constraint("Vertical", 5, 2, 10, 2))
sketch1.addConstraint(Sketcher.Constraint("Vertical", 4, 2, 23, 2))
sketch1.addConstraint(Sketcher.Constraint("Equal", 3, 8))
sketch1.addConstraint(Sketcher.Constraint("Equal", 48, 0))
sketch1.addConstraint(Sketcher.Constraint("Equal", 50, 2))
sketch1.addConstraint(Sketcher.Constraint("Equal", 55, 7))
sketch1.addConstraint(Sketcher.Constraint("Equal", 4, 9))
sketch1.addConstraint(Sketcher.Constraint("Equal", 59, 11))
sketch1.addConstraint(Sketcher.Constraint("Equal", 62, 14))
sketch1.addConstraint(Sketcher.Constraint("Equal", 15, 29))
sketch1.addConstraint(Sketcher.Constraint("Equal", 67, 69))
sketch1.addConstraint(Sketcher.Constraint("Radius", 6, 1.5))
sketch1.addConstraint(Sketcher.Constraint("DistanceX", 1, 1, 1, 2, 3.0))
sketch1.addConstraint(Sketcher.Constraint("DistanceX", 5, 2, 5, 1, 5.0))
sketch1.addConstraint(Sketcher.Constraint("DistanceX", 10, 1, 10, 2, 1.0))
sketch1.addConstraint(Sketcher.Constraint("Angle", 65, Q("-40 deg")))
sketch1.addConstraint(Sketcher.Constraint("Radius", 66, 2.75))
sketch1.addConstraint(Sketcher.Constraint("DistanceX", 0, 2, -1, 1, 6.0))
sketch1.addConstraint(Sketcher.Constraint("DistanceX", 13, 2, -1, 1, 4.5))
sketch1.addConstraint(Sketcher.Constraint("DistanceX", 12, 1, 12, 2, 1.43934))
sketch1.addConstraint(Sketcher.Constraint("Distance", 64, 1.485774))
sketch1.addConstraint(Sketcher.Constraint("Distance", 65, 0.878265))
pad1 = doc.addObject("PartDesign::Pad", "Pad")
body.addObject(pad1)
pad1.Profile = sketch1
pad1.Type = "TwoLengths"
pad1.Length = 110
pad1.Length2 = 110

doc.recompute()
